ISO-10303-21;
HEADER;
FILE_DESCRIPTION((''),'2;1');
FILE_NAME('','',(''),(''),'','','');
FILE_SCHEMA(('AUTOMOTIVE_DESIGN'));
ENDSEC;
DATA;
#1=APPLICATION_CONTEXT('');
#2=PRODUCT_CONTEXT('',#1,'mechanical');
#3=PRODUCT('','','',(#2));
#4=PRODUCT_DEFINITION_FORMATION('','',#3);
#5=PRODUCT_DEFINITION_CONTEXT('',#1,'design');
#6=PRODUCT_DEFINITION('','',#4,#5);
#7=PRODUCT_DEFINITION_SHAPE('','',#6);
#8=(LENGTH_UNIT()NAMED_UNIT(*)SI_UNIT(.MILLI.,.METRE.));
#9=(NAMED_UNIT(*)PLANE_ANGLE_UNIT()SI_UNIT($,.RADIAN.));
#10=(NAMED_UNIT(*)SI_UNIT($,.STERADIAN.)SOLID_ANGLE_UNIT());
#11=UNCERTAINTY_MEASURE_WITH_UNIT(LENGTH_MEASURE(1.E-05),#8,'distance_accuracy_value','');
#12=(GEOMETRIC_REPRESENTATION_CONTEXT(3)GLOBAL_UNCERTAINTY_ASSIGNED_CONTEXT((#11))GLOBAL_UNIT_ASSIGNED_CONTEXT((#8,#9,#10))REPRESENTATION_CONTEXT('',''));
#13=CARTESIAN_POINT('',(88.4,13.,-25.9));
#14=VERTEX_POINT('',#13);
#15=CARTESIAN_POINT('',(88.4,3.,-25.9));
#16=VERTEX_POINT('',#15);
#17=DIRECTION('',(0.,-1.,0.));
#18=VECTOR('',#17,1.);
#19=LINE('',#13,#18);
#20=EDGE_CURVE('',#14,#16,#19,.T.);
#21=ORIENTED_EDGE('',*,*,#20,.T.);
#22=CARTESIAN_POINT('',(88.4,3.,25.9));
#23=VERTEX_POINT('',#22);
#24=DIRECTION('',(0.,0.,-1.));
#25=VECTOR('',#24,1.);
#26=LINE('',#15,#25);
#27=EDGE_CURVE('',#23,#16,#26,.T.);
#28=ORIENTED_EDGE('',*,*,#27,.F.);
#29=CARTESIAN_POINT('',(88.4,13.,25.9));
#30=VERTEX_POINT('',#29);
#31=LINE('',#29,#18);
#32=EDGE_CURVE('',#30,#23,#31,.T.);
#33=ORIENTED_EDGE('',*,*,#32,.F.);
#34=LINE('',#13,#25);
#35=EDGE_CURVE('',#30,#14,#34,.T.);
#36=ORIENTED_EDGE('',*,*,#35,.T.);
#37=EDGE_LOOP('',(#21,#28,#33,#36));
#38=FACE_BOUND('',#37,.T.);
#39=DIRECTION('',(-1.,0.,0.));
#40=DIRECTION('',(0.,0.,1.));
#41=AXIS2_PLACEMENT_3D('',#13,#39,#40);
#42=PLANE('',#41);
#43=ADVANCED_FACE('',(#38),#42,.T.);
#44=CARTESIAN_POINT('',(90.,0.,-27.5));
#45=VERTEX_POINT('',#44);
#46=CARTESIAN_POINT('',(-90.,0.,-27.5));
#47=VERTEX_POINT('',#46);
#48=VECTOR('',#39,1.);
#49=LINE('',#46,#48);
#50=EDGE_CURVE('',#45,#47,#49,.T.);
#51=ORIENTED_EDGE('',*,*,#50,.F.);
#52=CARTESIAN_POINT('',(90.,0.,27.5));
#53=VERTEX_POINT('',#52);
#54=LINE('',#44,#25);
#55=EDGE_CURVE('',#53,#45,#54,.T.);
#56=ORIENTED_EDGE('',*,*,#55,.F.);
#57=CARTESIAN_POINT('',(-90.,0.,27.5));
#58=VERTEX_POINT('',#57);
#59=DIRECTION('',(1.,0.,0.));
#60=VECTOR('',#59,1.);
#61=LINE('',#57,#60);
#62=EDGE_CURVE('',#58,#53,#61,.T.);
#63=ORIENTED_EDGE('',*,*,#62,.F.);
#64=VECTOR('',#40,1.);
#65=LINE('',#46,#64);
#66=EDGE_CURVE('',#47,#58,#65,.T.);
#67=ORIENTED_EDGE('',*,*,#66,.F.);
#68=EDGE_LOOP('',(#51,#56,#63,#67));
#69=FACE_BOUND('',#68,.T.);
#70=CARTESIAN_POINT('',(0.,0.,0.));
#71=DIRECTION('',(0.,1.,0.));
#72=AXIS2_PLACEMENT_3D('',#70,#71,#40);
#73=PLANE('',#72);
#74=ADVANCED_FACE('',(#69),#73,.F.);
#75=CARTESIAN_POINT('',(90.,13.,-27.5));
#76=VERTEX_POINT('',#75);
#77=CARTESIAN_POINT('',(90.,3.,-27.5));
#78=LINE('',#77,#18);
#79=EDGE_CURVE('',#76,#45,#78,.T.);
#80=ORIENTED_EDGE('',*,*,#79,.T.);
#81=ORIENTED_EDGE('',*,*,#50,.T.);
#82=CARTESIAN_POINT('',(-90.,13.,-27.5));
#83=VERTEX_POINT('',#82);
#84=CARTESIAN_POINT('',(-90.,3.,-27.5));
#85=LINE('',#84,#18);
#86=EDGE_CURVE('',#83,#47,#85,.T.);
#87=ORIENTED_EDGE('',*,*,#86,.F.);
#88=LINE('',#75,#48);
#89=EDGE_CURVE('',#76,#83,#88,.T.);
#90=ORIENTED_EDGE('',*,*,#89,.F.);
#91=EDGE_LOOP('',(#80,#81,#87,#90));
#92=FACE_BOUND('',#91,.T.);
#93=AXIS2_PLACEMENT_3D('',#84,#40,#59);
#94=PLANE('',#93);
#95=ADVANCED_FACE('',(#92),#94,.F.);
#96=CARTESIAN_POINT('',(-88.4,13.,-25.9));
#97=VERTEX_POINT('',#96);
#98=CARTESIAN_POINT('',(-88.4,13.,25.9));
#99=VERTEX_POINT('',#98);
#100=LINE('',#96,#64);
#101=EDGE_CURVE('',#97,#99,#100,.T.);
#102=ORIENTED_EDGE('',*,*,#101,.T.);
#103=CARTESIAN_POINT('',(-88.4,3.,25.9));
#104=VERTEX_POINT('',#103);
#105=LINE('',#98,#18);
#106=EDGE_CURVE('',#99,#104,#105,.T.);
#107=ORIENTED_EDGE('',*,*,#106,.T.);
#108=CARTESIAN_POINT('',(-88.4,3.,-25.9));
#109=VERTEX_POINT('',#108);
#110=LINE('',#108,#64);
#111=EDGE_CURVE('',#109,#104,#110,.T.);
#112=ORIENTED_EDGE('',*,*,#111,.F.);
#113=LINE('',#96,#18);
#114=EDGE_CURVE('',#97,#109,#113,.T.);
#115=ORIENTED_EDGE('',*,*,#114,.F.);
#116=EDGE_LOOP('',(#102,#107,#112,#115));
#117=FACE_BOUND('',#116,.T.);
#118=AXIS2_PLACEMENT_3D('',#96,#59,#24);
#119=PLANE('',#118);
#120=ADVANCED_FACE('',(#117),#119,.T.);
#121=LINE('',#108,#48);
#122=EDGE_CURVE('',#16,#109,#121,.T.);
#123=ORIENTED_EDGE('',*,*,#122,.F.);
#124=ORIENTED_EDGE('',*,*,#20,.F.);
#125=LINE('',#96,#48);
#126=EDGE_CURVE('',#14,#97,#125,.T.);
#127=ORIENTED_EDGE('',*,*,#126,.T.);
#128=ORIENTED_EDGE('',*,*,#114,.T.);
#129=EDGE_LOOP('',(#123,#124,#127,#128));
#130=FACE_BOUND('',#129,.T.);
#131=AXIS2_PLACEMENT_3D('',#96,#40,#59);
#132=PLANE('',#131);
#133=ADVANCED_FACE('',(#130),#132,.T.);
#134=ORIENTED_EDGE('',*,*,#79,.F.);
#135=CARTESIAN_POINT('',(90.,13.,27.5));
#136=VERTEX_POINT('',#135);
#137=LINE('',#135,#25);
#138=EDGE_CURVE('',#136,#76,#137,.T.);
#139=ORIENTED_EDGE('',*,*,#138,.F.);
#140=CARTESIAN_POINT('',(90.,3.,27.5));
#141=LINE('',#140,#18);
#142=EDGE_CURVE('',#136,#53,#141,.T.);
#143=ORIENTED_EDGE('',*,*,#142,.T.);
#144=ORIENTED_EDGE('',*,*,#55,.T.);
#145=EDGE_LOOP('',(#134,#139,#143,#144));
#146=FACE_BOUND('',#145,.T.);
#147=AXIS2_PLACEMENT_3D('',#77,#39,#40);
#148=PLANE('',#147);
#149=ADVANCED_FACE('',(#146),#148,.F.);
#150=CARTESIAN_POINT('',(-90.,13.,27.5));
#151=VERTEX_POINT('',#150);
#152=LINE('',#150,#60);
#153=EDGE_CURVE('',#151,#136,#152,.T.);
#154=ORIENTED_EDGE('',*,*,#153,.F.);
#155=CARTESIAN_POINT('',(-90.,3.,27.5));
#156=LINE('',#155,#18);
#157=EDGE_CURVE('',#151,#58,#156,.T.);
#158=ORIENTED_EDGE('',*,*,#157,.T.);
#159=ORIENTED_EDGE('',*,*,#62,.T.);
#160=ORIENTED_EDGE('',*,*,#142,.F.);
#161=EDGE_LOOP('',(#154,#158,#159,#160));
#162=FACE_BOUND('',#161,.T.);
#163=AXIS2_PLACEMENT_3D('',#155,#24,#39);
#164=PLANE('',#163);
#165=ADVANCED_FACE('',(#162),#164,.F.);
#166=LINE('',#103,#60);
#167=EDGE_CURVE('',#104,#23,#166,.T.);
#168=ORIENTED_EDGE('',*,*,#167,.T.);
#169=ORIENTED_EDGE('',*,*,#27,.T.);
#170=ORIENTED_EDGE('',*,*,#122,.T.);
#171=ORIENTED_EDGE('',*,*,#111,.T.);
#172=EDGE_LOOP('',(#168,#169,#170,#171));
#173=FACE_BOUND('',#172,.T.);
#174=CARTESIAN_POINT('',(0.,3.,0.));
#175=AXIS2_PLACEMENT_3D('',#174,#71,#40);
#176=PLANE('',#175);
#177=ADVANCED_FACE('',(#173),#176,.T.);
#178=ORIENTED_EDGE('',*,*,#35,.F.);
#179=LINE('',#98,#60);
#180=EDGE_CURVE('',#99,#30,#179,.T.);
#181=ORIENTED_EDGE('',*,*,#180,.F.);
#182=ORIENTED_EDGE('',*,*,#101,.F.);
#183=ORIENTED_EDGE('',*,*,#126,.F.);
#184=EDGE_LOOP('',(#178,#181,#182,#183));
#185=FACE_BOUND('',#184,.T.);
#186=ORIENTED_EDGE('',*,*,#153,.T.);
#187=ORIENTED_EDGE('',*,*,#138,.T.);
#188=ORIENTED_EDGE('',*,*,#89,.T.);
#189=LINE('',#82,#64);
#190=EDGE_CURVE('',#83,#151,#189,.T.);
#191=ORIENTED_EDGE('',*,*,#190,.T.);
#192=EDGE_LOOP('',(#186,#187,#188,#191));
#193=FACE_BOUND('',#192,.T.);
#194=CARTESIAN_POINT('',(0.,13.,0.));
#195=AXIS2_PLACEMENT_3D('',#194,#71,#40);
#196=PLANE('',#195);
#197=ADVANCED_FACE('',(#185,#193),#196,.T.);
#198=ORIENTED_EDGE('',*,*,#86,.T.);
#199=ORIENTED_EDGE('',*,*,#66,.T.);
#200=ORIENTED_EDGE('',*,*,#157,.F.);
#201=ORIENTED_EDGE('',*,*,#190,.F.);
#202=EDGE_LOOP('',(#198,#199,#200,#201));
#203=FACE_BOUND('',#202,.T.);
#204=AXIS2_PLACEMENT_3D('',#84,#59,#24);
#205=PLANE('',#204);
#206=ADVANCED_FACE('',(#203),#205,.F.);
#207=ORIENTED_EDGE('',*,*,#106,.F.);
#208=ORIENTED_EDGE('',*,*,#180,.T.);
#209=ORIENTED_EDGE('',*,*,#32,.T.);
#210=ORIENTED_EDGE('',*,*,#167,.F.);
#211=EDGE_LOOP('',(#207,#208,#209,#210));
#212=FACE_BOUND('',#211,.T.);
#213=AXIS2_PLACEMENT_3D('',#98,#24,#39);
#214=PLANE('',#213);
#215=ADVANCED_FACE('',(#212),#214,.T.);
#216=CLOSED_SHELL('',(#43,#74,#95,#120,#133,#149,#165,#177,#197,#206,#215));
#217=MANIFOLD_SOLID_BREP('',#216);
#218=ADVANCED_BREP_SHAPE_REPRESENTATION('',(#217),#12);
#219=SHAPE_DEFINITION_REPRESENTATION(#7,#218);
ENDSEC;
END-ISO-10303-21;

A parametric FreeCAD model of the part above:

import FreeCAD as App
import Part
import Sketcher

V = App.Vector


def add_polygon(sketch, points):
    """Adds a closed chain of lines whose ends are joined by coincident constraints."""
    first, n = sketch.GeometryCount, len(points)
    for a, b in zip(points, points[1:] + points[:1]):
        sketch.addGeometry(Part.LineSegment(App.Vector(*a, 0), App.Vector(*b, 0)), False)
    for i in range(n):
        sketch.addConstraint(Sketcher.Constraint("Coincident", first + i, 2, first + (i + 1) % n, 1))

doc = App.newDocument("Part")
body = doc.addObject("PartDesign::Body", "Body")

# Sketch on XZ plane
sketch1 = body.newObject("Sketcher::SketchObject", "Sketch")
sketch1.AttachmentSupport = (doc.getObject("XZ_Plane"), [""])
sketch1.MapMode = "FlatFace"
add_polygon(sketch1, [(-90, -27.5), (-90, 27.5), (90, 27.5), (90, -27.5)])  # lines 0-3
sketch1.addConstraint(Sketcher.Constraint("Vertical", 0))
sketch1.addConstraint(Sketcher.Constraint("Horizontal", 1))
sketch1.addConstraint(Sketcher.Constraint("Vertical", 2))
sketch1.addConstraint(Sketcher.Constraint("Horizontal", 3))
sketch1.addConstraint(Sketcher.Constraint("Symmetric", 0, 2, 2, 2, -1, 1))
sketch1.addConstraint(Sketcher.Constraint("DistanceX", 1, 1, 1, 2, 180.0))
sketch1.addConstraint(Sketcher.Constraint("DistanceY", 0, 1, 0, 2, 55.0))
pad1 = body.newObject("PartDesign::Pad", "Pad")
pad1.Profile = sketch1
pad1.Length = 3
pad1.Reversed = True

# Sketch on XZ plane
sketch2 = body.newObject("Sketcher::SketchObject", "Sketch001")
sketch2.AttachmentSupport = (doc.getObject("XZ_Plane"), [""])
sketch2.MapMode = "FlatFace"
sketch2.AttachmentOffset = App.Placement(V(0, 0, -3), App.Rotation())
add_polygon(sketch2, [(-90, -27.5), (-90, 27.5), (90, 27.5), (90, -27.5)])  # lines 0-3
add_polygon(sketch2, [(88.4, 25.9), (-88.4, 25.9), (-88.4, -25.9), (88.4, -25.9)])  # lines 4-7
sketch2.addConstraint(Sketcher.Constraint("Vertical", 0))
sketch2.addConstraint(Sketcher.Constraint("Horizontal", 1))
sketch2.addConstraint(Sketcher.Constraint("Vertical", 2))
sketch2.addConstraint(Sketcher.Constraint("Horizontal", 3))
sketch2.addConstraint(Sketcher.Constraint("Horizontal", 4))
sketch2.addConstraint(Sketcher.Constraint("Vertical", 5))
sketch2.addConstraint(Sketcher.Constraint("Horizontal", 6))
sketch2.addConstraint(Sketcher.Constraint("Vertical", 7))
sketch2.addConstraint(Sketcher.Constraint("Symmetric", 0, 2, 2, 2, -1, 1))
sketch2.addConstraint(Sketcher.Constraint("Symmetric", 4, 2, 6, 2, -1, 1))
sketch2.addConstraint(Sketcher.Constraint("DistanceX", 1, 1, 1, 2, 180.0))
sketch2.addConstraint(Sketcher.Constraint("DistanceY", 0, 1, 0, 2, 55.0))
sketch2.addConstraint(Sketcher.Constraint("DistanceX", 4, 2, 4, 1, 176.8))
sketch2.addConstraint(Sketcher.Constraint("DistanceY", 5, 2, 5, 1, 51.8))
pad2 = body.newObject("PartDesign::Pad", "Pad001")
pad2.Profile = sketch2
pad2.Length = 10
pad2.Reversed = True

doc.recompute()
